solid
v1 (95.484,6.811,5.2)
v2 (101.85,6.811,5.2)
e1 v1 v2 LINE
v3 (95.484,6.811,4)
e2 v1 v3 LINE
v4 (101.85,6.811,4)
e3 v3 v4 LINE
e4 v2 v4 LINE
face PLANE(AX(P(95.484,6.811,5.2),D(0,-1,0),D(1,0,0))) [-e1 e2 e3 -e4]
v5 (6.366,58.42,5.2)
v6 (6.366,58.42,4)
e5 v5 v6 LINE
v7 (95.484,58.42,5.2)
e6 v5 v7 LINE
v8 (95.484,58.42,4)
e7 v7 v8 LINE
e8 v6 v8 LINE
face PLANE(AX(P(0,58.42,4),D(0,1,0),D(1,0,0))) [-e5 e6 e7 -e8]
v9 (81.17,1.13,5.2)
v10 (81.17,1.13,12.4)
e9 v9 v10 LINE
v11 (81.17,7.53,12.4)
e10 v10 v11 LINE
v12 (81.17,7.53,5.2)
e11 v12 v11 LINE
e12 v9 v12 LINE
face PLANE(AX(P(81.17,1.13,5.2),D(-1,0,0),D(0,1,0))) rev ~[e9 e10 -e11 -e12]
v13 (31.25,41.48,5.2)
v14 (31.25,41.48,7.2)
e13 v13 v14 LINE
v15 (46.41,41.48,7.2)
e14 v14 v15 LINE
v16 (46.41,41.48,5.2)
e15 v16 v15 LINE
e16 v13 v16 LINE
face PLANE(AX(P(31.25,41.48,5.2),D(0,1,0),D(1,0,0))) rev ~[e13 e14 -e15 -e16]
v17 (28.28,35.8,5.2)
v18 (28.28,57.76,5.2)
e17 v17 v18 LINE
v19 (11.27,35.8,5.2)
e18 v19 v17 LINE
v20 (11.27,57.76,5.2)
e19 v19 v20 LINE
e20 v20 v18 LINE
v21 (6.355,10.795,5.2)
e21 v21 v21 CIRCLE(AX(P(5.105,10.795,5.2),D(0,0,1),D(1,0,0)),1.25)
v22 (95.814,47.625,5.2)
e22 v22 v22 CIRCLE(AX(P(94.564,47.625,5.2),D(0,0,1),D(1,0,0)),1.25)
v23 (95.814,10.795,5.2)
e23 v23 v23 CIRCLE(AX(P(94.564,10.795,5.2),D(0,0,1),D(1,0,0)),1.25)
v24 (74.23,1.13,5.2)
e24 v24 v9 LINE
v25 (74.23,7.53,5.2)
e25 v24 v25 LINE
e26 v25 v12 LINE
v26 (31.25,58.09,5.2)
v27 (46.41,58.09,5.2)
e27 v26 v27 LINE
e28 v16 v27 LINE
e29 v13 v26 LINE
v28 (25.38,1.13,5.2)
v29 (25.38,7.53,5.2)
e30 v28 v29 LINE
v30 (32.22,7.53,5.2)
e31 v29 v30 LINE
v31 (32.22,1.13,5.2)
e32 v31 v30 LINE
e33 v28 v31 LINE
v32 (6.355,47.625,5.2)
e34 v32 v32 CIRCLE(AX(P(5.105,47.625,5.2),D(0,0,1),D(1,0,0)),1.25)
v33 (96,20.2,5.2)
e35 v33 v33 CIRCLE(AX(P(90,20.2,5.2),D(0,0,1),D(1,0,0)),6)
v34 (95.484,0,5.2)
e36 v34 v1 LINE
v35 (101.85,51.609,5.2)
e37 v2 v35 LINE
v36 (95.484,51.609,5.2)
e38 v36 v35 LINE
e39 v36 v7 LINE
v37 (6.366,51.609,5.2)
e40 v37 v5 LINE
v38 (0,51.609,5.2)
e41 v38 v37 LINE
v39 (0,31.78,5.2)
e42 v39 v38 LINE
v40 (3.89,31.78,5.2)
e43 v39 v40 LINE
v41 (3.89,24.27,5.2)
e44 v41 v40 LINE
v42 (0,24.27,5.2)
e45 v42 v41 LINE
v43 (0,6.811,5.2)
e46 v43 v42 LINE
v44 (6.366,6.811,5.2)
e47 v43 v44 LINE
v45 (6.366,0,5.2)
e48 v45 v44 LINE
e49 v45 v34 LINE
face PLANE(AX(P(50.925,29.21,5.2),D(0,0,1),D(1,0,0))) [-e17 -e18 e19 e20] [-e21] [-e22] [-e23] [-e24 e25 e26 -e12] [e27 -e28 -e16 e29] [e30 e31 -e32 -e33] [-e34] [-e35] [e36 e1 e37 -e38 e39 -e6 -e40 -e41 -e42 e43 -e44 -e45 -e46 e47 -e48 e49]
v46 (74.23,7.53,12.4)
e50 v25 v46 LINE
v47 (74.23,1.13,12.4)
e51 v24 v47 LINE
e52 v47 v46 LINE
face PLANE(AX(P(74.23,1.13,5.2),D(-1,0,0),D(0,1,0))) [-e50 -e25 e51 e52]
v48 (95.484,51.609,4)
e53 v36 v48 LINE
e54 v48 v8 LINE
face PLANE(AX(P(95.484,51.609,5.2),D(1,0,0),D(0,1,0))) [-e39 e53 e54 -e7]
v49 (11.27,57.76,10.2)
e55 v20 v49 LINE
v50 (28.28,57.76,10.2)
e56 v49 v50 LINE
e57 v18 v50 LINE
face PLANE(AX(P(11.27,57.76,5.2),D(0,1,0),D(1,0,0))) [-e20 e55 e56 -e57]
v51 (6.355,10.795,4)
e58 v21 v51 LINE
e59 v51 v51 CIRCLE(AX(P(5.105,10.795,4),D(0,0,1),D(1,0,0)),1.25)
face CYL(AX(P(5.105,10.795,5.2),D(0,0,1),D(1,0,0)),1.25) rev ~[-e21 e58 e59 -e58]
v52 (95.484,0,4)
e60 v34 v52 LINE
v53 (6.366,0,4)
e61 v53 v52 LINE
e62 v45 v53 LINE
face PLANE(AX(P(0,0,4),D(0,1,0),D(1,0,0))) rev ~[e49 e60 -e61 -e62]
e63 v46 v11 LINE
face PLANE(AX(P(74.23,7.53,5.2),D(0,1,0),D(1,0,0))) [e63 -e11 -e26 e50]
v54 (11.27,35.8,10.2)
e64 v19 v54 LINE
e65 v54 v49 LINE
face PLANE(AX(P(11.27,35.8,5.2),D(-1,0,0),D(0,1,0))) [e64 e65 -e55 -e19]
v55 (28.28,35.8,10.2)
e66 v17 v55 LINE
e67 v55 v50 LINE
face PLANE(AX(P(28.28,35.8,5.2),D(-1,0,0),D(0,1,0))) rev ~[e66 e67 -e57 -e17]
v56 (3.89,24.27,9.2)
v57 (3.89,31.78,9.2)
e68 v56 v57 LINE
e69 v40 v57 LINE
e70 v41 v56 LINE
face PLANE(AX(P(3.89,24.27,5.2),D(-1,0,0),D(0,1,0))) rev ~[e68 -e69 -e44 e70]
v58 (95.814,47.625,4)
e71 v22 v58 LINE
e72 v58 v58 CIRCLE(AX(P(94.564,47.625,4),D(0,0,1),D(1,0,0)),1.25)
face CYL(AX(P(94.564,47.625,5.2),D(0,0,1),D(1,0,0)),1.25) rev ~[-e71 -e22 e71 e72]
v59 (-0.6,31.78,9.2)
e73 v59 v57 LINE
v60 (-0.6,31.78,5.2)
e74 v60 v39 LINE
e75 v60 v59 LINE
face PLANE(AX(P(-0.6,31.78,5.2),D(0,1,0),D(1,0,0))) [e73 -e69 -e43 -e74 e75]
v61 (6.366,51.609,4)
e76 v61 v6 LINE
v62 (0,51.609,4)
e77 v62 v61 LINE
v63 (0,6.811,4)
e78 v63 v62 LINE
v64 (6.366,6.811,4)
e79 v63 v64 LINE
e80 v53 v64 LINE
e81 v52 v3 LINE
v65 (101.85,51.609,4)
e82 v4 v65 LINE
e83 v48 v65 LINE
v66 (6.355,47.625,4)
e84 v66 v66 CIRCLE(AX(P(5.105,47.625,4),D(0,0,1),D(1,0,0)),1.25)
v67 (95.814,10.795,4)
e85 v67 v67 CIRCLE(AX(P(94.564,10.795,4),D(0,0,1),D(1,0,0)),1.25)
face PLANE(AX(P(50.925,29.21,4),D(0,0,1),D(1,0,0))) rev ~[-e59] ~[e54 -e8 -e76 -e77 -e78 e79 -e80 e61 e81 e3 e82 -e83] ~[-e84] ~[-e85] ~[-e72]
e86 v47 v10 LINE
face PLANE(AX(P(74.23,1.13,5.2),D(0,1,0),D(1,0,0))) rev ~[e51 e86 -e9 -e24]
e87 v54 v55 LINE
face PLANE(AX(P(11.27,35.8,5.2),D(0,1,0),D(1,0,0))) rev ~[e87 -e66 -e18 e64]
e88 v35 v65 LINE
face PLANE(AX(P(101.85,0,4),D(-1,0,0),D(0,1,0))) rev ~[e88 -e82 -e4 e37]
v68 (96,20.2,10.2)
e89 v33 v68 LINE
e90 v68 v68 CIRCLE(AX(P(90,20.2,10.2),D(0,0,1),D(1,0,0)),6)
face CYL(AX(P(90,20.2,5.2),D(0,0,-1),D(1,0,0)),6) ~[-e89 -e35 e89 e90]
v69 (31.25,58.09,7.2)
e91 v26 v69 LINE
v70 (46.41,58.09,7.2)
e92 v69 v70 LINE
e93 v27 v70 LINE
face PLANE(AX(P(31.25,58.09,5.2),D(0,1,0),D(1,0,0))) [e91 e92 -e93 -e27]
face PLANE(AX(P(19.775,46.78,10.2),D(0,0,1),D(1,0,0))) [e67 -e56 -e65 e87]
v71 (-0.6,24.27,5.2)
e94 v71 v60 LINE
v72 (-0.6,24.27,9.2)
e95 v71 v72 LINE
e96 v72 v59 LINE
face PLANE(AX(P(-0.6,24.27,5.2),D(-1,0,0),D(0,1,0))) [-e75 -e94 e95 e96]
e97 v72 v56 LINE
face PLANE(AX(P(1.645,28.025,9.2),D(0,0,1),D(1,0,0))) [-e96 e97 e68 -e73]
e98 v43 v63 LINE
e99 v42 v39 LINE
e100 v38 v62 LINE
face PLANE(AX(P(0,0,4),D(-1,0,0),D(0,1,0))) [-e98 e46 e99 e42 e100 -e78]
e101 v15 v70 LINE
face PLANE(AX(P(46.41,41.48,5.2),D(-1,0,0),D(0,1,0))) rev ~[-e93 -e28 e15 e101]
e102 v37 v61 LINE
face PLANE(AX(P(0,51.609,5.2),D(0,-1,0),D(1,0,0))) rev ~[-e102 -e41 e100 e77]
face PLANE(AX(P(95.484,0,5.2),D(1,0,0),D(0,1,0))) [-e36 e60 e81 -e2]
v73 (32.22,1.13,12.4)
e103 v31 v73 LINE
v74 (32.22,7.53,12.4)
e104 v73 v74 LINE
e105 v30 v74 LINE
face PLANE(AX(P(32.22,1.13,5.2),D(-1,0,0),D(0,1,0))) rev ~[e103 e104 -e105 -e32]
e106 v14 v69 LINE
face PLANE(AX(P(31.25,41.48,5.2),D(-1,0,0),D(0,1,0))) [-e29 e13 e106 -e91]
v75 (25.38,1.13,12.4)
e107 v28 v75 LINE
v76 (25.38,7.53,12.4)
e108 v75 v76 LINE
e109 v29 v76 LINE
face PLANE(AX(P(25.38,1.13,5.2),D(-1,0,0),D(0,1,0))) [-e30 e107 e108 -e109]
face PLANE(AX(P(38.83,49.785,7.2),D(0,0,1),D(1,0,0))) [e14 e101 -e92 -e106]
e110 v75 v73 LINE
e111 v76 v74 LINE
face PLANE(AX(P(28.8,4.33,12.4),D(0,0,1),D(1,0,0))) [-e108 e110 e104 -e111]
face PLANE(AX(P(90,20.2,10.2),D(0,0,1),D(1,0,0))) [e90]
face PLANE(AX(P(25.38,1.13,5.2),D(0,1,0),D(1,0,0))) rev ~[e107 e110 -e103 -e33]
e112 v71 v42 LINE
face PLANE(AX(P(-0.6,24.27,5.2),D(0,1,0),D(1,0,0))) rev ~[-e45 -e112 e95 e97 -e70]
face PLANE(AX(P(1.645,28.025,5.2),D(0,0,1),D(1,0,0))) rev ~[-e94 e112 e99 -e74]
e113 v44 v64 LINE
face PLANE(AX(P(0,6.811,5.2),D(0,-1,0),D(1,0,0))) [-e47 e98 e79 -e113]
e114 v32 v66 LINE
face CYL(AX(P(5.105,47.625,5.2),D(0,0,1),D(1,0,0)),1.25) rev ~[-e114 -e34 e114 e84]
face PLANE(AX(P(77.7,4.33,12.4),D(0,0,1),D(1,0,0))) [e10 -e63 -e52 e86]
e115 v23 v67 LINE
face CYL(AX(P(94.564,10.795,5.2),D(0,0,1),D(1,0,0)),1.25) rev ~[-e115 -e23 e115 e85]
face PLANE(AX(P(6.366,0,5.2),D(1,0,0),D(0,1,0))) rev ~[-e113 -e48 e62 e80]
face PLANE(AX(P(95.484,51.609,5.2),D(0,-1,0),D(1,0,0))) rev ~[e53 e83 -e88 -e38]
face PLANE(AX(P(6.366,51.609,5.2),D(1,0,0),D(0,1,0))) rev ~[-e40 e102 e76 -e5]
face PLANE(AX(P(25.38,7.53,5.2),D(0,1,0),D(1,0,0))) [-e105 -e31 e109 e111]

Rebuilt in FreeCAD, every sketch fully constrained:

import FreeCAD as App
import Part
import Sketcher


def add_polygon(sketch, points):
    """Adds a closed chain of lines whose ends are joined by coincident constraints."""
    first, n = sketch.GeometryCount, len(points)
    for a, b in zip(points, points[1:] + points[:1]):
        sketch.addGeometry(Part.LineSegment(App.Vector(*a, 0), App.Vector(*b, 0)), False)
    for i in range(n):
        sketch.addConstraint(Sketcher.Constraint("Coincident", first + i, 2, first + (i + 1) % n, 1))

doc = App.newDocument("Part")
body = doc.addObject("PartDesign::Body", "Body")

# Sketch on XY plane
sketch1 = body.newObject("Sketcher::SketchObject", "Sketch")
sketch1.AttachmentSupport = (doc.getObject("XY_Plane"), [""])
sketch1.MapMode = "FlatFace"
add_polygon(sketch1, [(0, 58.42), (0, 0), (101.85, 0), (101.85, 58.42)])  # lines 0-3
sketch1.addConstraint(Sketcher.Constraint("Vertical", 0))
sketch1.addConstraint(Sketcher.Constraint("Horizontal", 1))
sketch1.addConstraint(Sketcher.Constraint("Vertical", 2))
sketch1.addConstraint(Sketcher.Constraint("Horizontal", 3))
sketch1.addConstraint(Sketcher.Constraint("Coincident", 0, 2, -1, 1))
sketch1.addConstraint(Sketcher.Constraint("DistanceX", 1, 1, 1, 2, 101.85))
sketch1.addConstraint(Sketcher.Constraint("DistanceY", 0, 2, 0, 1, 58.42))
pad1 = body.newObject("PartDesign::Pad", "Pad")
pad1.Profile = sketch1
pad1.Length = 1.2

# Sketch on XY plane
sketch2 = body.newObject("Sketcher::SketchObject", "Sketch001")
sketch2.AttachmentSupport = (doc.getObject("XY_Plane"), [""])
sketch2.MapMode = "FlatFace"
sketch2.AttachmentOffset = App.Placement(App.Vector(0, 0, 1.2), App.Rotation())
add_polygon(sketch2, [(0, 58.42), (0, 51.609), (6.366, 51.609), (6.366, 58.42)])  # lines 0-3
add_polygon(sketch2, [(95.484, 58.42), (95.484, 51.609), (101.85, 51.609), (101.85, 58.42)])  # lines 4-7
add_polygon(sketch2, [(95.484, 6.811), (95.484, 0), (101.85, 0), (101.85, 6.811)])  # lines 8-11
add_polygon(sketch2, [(0, 6.811), (0, 0), (6.366, 0), (6.366, 6.811)])  # lines 12-15
sketch2.addConstraint(Sketcher.Constraint("Vertical", 0))
sketch2.addConstraint(Sketcher.Constraint("Horizontal", 1))
sketch2.addConstraint(Sketcher.Constraint("Vertical", 2))
sketch2.addConstraint(Sketcher.Constraint("Horizontal", 3))
sketch2.addConstraint(Sketcher.Constraint("Vertical", 4))
sketch2.addConstraint(Sketcher.Constraint("Horizontal", 5))
sketch2.addConstraint(Sketcher.Constraint("Vertical", 6))
sketch2.addConstraint(Sketcher.Constraint("Horizontal", 7))
sketch2.addConstraint(Sketcher.Constraint("Vertical", 8))
sketch2.addConstraint(Sketcher.Constraint("Horizontal", 9))
sketch2.addConstraint(Sketcher.Constraint("Vertical", 10))
sketch2.addConstraint(Sketcher.Constraint("Horizontal", 11))
sketch2.addConstraint(Sketcher.Constraint("Vertical", 12))
sketch2.addConstraint(Sketcher.Constraint("Horizontal", 13))
sketch2.addConstraint(Sketcher.Constraint("Vertical", 14))
sketch2.addConstraint(Sketcher.Constraint("Horizontal", 15))
sketch2.addConstraint(Sketcher.Constraint("Coincident", 12, 2, -1, 1))
sketch2.addConstraint(Sketcher.Constraint("PointOnObject", 0, 2, -2))
sketch2.addConstraint(Sketcher.Constraint("PointOnObject", 8, 2, -1))
sketch2.addConstraint(Sketcher.Constraint("Horizontal", 1, 2, 4, 2))
sketch2.addConstraint(Sketcher.Constraint("Horizontal", 3, 2, 6, 2))
sketch2.addConstraint(Sketcher.Constraint("Horizontal", 11, 2, 14, 2))
sketch2.addConstraint(Sketcher.Constraint("Vertical", 7, 2, 8, 2))
sketch2.addConstraint(Sketcher.Constraint("Vertical", 6, 2, 9, 2))
sketch2.addConstraint(Sketcher.Constraint("Vertical", 2, 2, 13, 2))
sketch2.addConstraint(Sketcher.Constraint("Equal", 3, 5))
sketch2.addConstraint(Sketcher.Constraint("Equal", 6, 8))
sketch2.addConstraint(Sketcher.Constraint("DistanceX", 1, 1, 1, 2, 6.366))
sketch2.addConstraint(Sketcher.Constraint("DistanceY", 0, 2, 0, 1, 6.811))
sketch2.addConstraint(Sketcher.Constraint("DistanceY", -1, 1, 2, 2, 58.42))
sketch2.addConstraint(Sketcher.Constraint("DistanceX", -1, 1, 5, 2, 101.85))
pocket1 = body.newObject("PartDesign::Pocket", "Pocket")
pocket1.Profile = sketch2
pocket1.Type = "ThroughAll"

# Sketch on XY plane
sketch3 = body.newObject("Sketcher::SketchObject", "Sketch002")
sketch3.AttachmentSupport = (doc.getObject("XY_Plane"), [""])
sketch3.MapMode = "FlatFace"
sketch3.AttachmentOffset = App.Placement(App.Vector(0, 0, 1.2), App.Rotation())
sketch3.addGeometry(Part.Circle(App.Vector(5.105, 47.625, 0), App.Vector(0, 0, 1), 1.25), False)
sketch3.addGeometry(Part.Circle(App.Vector(94.564, 47.625, 0), App.Vector(0, 0, 1), 1.25), False)
sketch3.addGeometry(Part.Circle(App.Vector(94.564, 10.795, 0), App.Vector(0, 0, 1), 1.25), False)
sketch3.addGeometry(Part.Circle(App.Vector(5.105, 10.795, 0), App.Vector(0, 0, 1), 1.25), False)
sketch3.addConstraint(Sketcher.Constraint("Equal", 0, 1))
sketch3.addConstraint(Sketcher.Constraint("Equal", 1, 2))
sketch3.addConstraint(Sketcher.Constraint("Equal", 2, 3))
sketch3.addConstraint(Sketcher.Constraint("Horizontal", 0, 3, 1, 3))
sketch3.addConstraint(Sketcher.Constraint("Horizontal", 2, 3, 3, 3))
sketch3.addConstraint(Sketcher.Constraint("Vertical", 1, 3, 2, 3))
sketch3.addConstraint(Sketcher.Constraint("Vertical", 0, 3, 3, 3))
sketch3.addConstraint(Sketcher.Constraint("Diameter", 0, 2.5))
sketch3.addConstraint(Sketcher.Constraint("DistanceY", 2, 3, 1, 3, 36.83))
sketch3.addConstraint(Sketcher.Constraint("DistanceX", -1, 1, 0, 3, 5.105))
sketch3.addConstraint(Sketcher.Constraint("DistanceY", -1, 1, 0, 3, 47.625))
sketch3.addConstraint(Sketcher.Constraint("DistanceX", -1, 1, 1, 3, 94.564))
pocket2 = body.newObject("PartDesign::Pocket", "Pocket001")
pocket2.Profile = sketch3
pocket2.Type = "ThroughAll"

# Sketch on XY plane
sketch4 = body.newObject("Sketcher::SketchObject", "Sketch003")
sketch4.AttachmentSupport = (doc.getObject("XY_Plane"), [""])
sketch4.MapMode = "FlatFace"
sketch4.AttachmentOffset = App.Placement(App.Vector(0, 0, 1.2), App.Rotation())
sketch4.addGeometry(Part.Circle(App.Vector(90, 20.2, 0), App.Vector(0, 0, 1), 6), False)
sketch4.addConstraint(Sketcher.Constraint("Diameter", 0, 12.0))
sketch4.addConstraint(Sketcher.Constraint("DistanceX", -1, 1, 0, 3, 90.0))
sketch4.addConstraint(Sketcher.Constraint("DistanceY", -1, 1, 0, 3, 20.2))
pad2 = body.newObject("PartDesign::Pad", "Pad001")
pad2.Profile = sketch4
pad2.Length = 5

# Sketch on XY plane
sketch5 = body.newObject("Sketcher::SketchObject", "Sketch004")
sketch5.AttachmentSupport = (doc.getObject("XY_Plane"), [""])
sketch5.MapMode = "FlatFace"
sketch5.AttachmentOffset = App.Placement(App.Vector(0, 0, 1.2), App.Rotation())
add_polygon(sketch5, [(25.38, 7.53), (25.38, 1.13), (32.22, 1.13), (32.22, 7.53)])  # lines 0-3
add_polygon(sketch5, [(74.23, 7.53), (74.23, 1.13), (81.17, 1.13), (81.17, 7.53)])  # lines 4-7
sketch5.addConstraint(Sketcher.Constraint("Vertical", 0))
sketch5.addConstraint(Sketcher.Constraint("Horizontal", 1))
sketch5.addConstraint(Sketcher.Constraint("Vertical", 2))
sketch5.addConstraint(Sketcher.Constraint("Horizontal", 3))
sketch5.addConstraint(Sketcher.Constraint("Vertical", 4))
sketch5.addConstraint(Sketcher.Constraint("Horizontal", 5))
sketch5.addConstraint(Sketcher.Constraint("Vertical", 6))
sketch5.addConstraint(Sketcher.Constraint("Horizontal", 7))
sketch5.addConstraint(Sketcher.Constraint("Horizontal", 1, 2, 4, 2))
sketch5.addConstraint(Sketcher.Constraint("Horizontal", 3, 2, 6, 2))
sketch5.addConstraint(Sketcher.Constraint("DistanceY", 0, 2, 0, 1, 6.4))
sketch5.addConstraint(Sketcher.Constraint("DistanceX", 1, 1, 1, 2, 6.84))
sketch5.addConstraint(Sketcher.Constraint("DistanceX", 5, 1, 5, 2, 6.94))
sketch5.addConstraint(Sketcher.Constraint("DistanceX", -1, 1, 0, 2, 25.38))
sketch5.addConstraint(Sketcher.Constraint("DistanceY", -1, 1, 0, 2, 1.13))
sketch5.addConstraint(Sketcher.Constraint("DistanceX", -1, 1, 4, 2, 74.23))
pad3 = body.newObject("PartDesign::Pad", "Pad002")
pad3.Profile = sketch5
pad3.Length = 7.2

# Sketch on XY plane
sketch6 = body.newObject("Sketcher::SketchObject", "Sketch005")
sketch6.AttachmentSupport = (doc.getObject("XY_Plane"), [""])
sketch6.MapMode = "FlatFace"
sketch6.AttachmentOffset = App.Placement(App.Vector(0, 0, 1.2), App.Rotation())
add_polygon(sketch6, [(11.27, 57.76), (11.27, 35.8), (28.28, 35.8), (28.28, 57.76)])  # lines 0-3
sketch6.addConstraint(Sketcher.Constraint("Vertical", 0))
sketch6.addConstraint(Sketcher.Constraint("Horizontal", 1))
sketch6.addConstraint(Sketcher.Constraint("Vertical", 2))
sketch6.addConstraint(Sketcher.Constraint("Horizontal", 3))
sketch6.addConstraint(Sketcher.Constraint("DistanceX", 1, 1, 1, 2, 17.01))
sketch6.addConstraint(Sketcher.Constraint("DistanceY", 0, 2, 0, 1, 21.96))
sketch6.addConstraint(Sketcher.Constraint("DistanceY", -1, 1, 0, 2, 35.8))
sketch6.addConstraint(Sketcher.Constraint("DistanceX", -1, 1, 0, 2, 11.27))
pad4 = body.newObject("PartDesign::Pad", "Pad003")
pad4.Profile = sketch6
pad4.Length = 5

# Sketch on XY plane
sketch7 = body.newObject("Sketcher::SketchObject", "Sketch006")
sketch7.AttachmentSupport = (doc.getObject("XY_Plane"), [""])
sketch7.MapMode = "FlatFace"
sketch7.AttachmentOffset = App.Placement(App.Vector(0, 0, 1.2), App.Rotation())
add_polygon(sketch7, [(31.25, 58.09), (31.25, 41.48), (46.41, 41.48), (46.41, 58.09)])  # lines 0-3
sketch7.addConstraint(Sketcher.Constraint("Vertical", 0))
sketch7.addConstraint(Sketcher.Constraint("Horizontal", 1))
sketch7.addConstraint(Sketcher.Constraint("Vertical", 2))
sketch7.addConstraint(Sketcher.Constraint("Horizontal", 3))
sketch7.addConstraint(Sketcher.Constraint("DistanceX", 1, 1, 1, 2, 15.16))
sketch7.addConstraint(Sketcher.Constraint("DistanceY", 0, 2, 0, 1, 16.61))
sketch7.addConstraint(Sketcher.Constraint("DistanceX", -1, 1, 0, 2, 31.25))
sketch7.addConstraint(Sketcher.Constraint("DistanceY", -1, 1, 0, 2, 41.48))
pad5 = body.newObject("PartDesign::Pad", "Pad004")
pad5.Profile = sketch7
pad5.Length = 2

# Sketch on XY plane
sketch8 = body.newObject("Sketcher::SketchObject", "Sketch007")
sketch8.AttachmentSupport = (doc.getObject("XY_Plane"), [""])
sketch8.MapMode = "FlatFace"
sketch8.AttachmentOffset = App.Placement(App.Vector(0, 0, 1.2), App.Rotation())
add_polygon(sketch8, [(-0.6, 31.78), (-0.6, 24.27), (3.89, 24.27), (3.89, 31.78)])  # lines 0-3
sketch8.addConstraint(Sketcher.Constraint("Vertical", 0))
sketch8.addConstraint(Sketcher.Constraint("Horizontal", 1))
sketch8.addConstraint(Sketcher.Constraint("Vertical", 2))
sketch8.addConstraint(Sketcher.Constraint("Horizontal", 3))
sketch8.addConstraint(Sketcher.Constraint("DistanceX", 1, 1, 1, 2, 4.49))
sketch8.addConstraint(Sketcher.Constraint("DistanceY", 0, 2, 0, 1, 7.51))
sketch8.addConstraint(Sketcher.Constraint("DistanceX", 0, 2, -1, 1, 0.6))
sketch8.addConstraint(Sketcher.Constraint("DistanceY", -1, 1, 0, 2, 24.27))
pad6 = body.newObject("PartDesign::Pad", "Pad005")
pad6.Profile = sketch8
pad6.Length = 4
body2 = doc.addObject("PartDesign::Body", "Body001")
doc.recompute()

body.Placement = App.Placement(App.Vector(0, 0, 4), App.Rotation(App.Vector(0, 0, 1), 0))
boolean = body2.newObject("PartDesign::Boolean", "Boolean")
boolean.Type = "Fuse"
boolean.addObjects([body])

doc.recompute()
